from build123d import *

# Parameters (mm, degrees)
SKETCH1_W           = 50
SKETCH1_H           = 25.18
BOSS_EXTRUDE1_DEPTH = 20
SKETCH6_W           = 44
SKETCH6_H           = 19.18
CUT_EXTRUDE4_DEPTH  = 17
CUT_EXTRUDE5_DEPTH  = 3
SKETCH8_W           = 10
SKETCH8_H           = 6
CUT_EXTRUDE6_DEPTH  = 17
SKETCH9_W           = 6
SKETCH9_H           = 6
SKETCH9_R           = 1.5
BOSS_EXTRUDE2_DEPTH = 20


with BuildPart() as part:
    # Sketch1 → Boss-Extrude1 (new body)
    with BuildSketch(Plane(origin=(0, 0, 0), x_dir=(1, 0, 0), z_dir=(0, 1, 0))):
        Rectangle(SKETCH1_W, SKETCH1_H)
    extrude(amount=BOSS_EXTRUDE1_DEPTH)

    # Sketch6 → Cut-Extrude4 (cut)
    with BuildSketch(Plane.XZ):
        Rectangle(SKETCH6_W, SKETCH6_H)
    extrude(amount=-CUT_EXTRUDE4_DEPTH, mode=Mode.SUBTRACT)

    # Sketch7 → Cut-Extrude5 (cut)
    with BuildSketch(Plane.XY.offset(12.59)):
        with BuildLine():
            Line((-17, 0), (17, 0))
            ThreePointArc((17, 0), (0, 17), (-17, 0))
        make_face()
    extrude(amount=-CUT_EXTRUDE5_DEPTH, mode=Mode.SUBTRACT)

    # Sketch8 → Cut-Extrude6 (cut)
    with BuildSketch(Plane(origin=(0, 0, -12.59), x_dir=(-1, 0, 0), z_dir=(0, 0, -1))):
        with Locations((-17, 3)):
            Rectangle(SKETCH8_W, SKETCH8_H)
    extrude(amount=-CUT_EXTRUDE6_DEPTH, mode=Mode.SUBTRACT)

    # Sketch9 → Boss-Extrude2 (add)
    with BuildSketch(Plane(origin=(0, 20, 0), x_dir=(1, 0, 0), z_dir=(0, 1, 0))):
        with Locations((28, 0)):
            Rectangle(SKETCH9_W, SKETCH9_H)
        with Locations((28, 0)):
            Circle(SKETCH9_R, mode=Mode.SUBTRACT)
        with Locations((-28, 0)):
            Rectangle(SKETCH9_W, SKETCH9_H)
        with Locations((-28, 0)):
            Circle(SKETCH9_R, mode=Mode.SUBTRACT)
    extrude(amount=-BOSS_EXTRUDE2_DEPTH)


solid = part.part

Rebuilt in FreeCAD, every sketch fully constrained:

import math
import FreeCAD as App
import Part
import Sketcher
from FreeCAD import Vector


def add_polygon(sketch, points):
    """Adds a closed chain of lines whose ends are joined by coincident constraints."""
    first, n = sketch.GeometryCount, len(points)
    for a, b in zip(points, points[1:] + points[:1]):
        sketch.addGeometry(Part.LineSegment(App.Vector(*a, 0), App.Vector(*b, 0)), False)
    for i in range(n):
        sketch.addConstraint(Sketcher.Constraint("Coincident", first + i, 2, first + (i + 1) % n, 1))

doc = App.newDocument("Part")
body = doc.addObject("PartDesign::Body", "Body")

sketch1 = doc.addObject("Sketcher::SketchObject", "Sketch")
body.addObject(sketch1)
sketch1.AttachmentSupport = (doc.XZ_Plane, [""])
sketch1.MapMode = "FlatFace"
add_polygon(sketch1, [(-25, -13), (-25, 13), (25, 13), (25, -13)])
sketch1.addConstraint(Sketcher.Constraint("Vertical", 0))
sketch1.addConstraint(Sketcher.Constraint("Horizontal", 1))
sketch1.addConstraint(Sketcher.Constraint("Vertical", 2))
sketch1.addConstraint(Sketcher.Constraint("Horizontal", 3))
sketch1.addConstraint(Sketcher.Constraint("Symmetric", 0, 2, 2, 2, -1, 1))
sketch1.addConstraint(Sketcher.Constraint("DistanceX", 1, 1, 1, 2, 50.0))
sketch1.addConstraint(Sketcher.Constraint("DistanceY", 0, 1, 0, 2, 25.18))
pad1 = doc.addObject("PartDesign::Pad", "Pad")
body.addObject(pad1)
pad1.Profile = sketch1
pad1.Length = 20
pad1.Reversed = True

sketch2 = doc.addObject("Sketcher::SketchObject", "Sketch001")
body.addObject(sketch2)
sketch2.AttachmentSupport = (doc.XZ_Plane, [""])
sketch2.MapMode = "FlatFace"
add_polygon(sketch2, [(-22, 10), (-22, -10), (22, -10), (22, 10)])
sketch2.addConstraint(Sketcher.Constraint("Vertical", 0))
sketch2.addConstraint(Sketcher.Constraint("Horizontal", 1))
sketch2.addConstraint(Sketcher.Constraint("Vertical", 2))
sketch2.addConstraint(Sketcher.Constraint("Horizontal", 3))
sketch2.addConstraint(Sketcher.Constraint("Symmetric", 0, 2, 2, 2, -1, 1))
sketch2.addConstraint(Sketcher.Constraint("DistanceX", 1, 1, 1, 2, 44.0))
sketch2.addConstraint(Sketcher.Constraint("DistanceY", 0, 2, 0, 1, 19.18))
pocket1 = doc.addObject("PartDesign::Pocket", "Pocket")
body.addObject(pocket1)
pocket1.Profile = sketch2
pocket1.Length = 17

sketch3 = doc.addObject("Sketcher::SketchObject", "Sketch002")
body.addObject(sketch3)
sketch3.AttachmentSupport = (doc.XY_Plane, [""])
sketch3.MapMode = "FlatFace"
sketch3.AttachmentOffset = App.Placement(Vector(0, 0, 12.59), App.Rotation())
sketch3.addGeometry(Part.LineSegment(Vector(-17, 0, 0), Vector(17, 0, 0)), False)
sketch3.addGeometry(Part.ArcOfCircle(Part.Circle(Vector(0, 0, 0), Vector(0, 0, 1), 17), math.radians(0), math.radians(180)), False)
sketch3.addConstraint(Sketcher.Constraint("Coincident", 0, 1, 1, 2))
sketch3.addConstraint(Sketcher.Constraint("Coincident", 1, 1, 0, 2))
sketch3.addConstraint(Sketcher.Constraint("Horizontal", 0))
sketch3.addConstraint(Sketcher.Constraint("Coincident", 1, 3, -1, 1))
sketch3.addConstraint(Sketcher.Constraint("PointOnObject", 0, 1, -1))
sketch3.addConstraint(Sketcher.Constraint("Radius", 1, 17.0))
pocket2 = doc.addObject("PartDesign::Pocket", "Pocket001")
body.addObject(pocket2)
pocket2.Profile = sketch3
pocket2.Length = 3

sketch4 = doc.addObject("Sketcher::SketchObject", "Sketch003")
body.addObject(sketch4)
sketch4.AttachmentSupport = (doc.XY_Plane, [""])
sketch4.MapMode = "FlatFace"
sketch4.AttachmentOffset = App.Placement(Vector(0, 0, -12.59), App.Rotation())
add_polygon(sketch4, [(22, 6), (22, 0), (12, 0), (12, 6)])
sketch4.addConstraint(Sketcher.Constraint("Vertical", 0))
sketch4.addConstraint(Sketcher.Constraint("Horizontal", 1))
sketch4.addConstraint(Sketcher.Constraint("Vertical", 2))
sketch4.addConstraint(Sketcher.Constraint("Horizontal", 3))
sketch4.addConstraint(Sketcher.Constraint("PointOnObject", 0, 2, -1))
sketch4.addConstraint(Sketcher.Constraint("DistanceX", 1, 2, 1, 1, 10.0))
sketch4.addConstraint(Sketcher.Constraint("DistanceY", 0, 2, 0, 1, 6.0))
sketch4.addConstraint(Sketcher.Constraint("DistanceX", -1, 1, 0, 2, 22.0))
pocket3 = doc.addObject("PartDesign::Pocket", "Pocket002")
body.addObject(pocket3)
pocket3.Profile = sketch4
pocket3.Length = 17
pocket3.Reversed = True

sketch5 = doc.addObject("Sketcher::SketchObject", "Sketch004")
body.addObject(sketch5)
sketch5.AttachmentSupport = (doc.XZ_Plane, [""])
sketch5.MapMode = "FlatFace"
sketch5.AttachmentOffset = App.Placement(Vector(0, 0, -20), App.Rotation())
add_polygon(sketch5, [(25, -3), (25, 3), (31, 3), (31, -3)])
sketch5.addGeometry(Part.Circle(Vector(28, 0, 0), Vector(0, 0, 1), 1.5), False)
add_polygon(sketch5, [(-31, -3), (-31, 3), (-25, 3), (-25, -3)])
sketch5.addGeometry(Part.Circle(Vector(-28, 0, 0), Vector(0, 0, 1), 1.5), False)
sketch5.addConstraint(Sketcher.Constraint("Vertical", 0))
sketch5.addConstraint(Sketcher.Constraint("Horizontal", 1))
sketch5.addConstraint(Sketcher.Constraint("Vertical", 2))
sketch5.addConstraint(Sketcher.Constraint("Horizontal", 3))
sketch5.addConstraint(Sketcher.Constraint("Vertical", 5))
sketch5.addConstraint(Sketcher.Constraint("Horizontal", 6))
sketch5.addConstraint(Sketcher.Constraint("Vertical", 7))
sketch5.addConstraint(Sketcher.Constraint("Horizontal", 8))
sketch5.addConstraint(Sketcher.Constraint("Equal", 4, 9))
sketch5.addConstraint(Sketcher.Constraint("Symmetric", 4, 3, 9, 3, -1, 1))
sketch5.addConstraint(Sketcher.Constraint("Symmetric", 2, 2, 5, 2, -1, 1))
sketch5.addConstraint(Sketcher.Constraint("Symmetric", 0, 2, 7, 2, -1, 1))
sketch5.addConstraint(Sketcher.Constraint("PointOnObject", 4, 3, -1))
sketch5.addConstraint(Sketcher.Constraint("Horizontal", 1, 2, 5, 2))
sketch5.addConstraint(Sketcher.Constraint("Equal", 8, 0))
sketch5.addConstraint(Sketcher.Constraint("Diameter", 4, 3.0))
sketch5.addConstraint(Sketcher.Constraint("DistanceX", 1, 1, 1, 2, 6.0))
sketch5.addConstraint(Sketcher.Constraint("DistanceX", -1, 1, 4, 3, 28.0))
sketch5.addConstraint(Sketcher.Constraint("DistanceX", -1, 1, 0, 2, 25.0))
pad2 = doc.addObject("PartDesign::Pad", "Pad001")
body.addObject(pad2)
pad2.Profile = sketch5
pad2.Length = 20

doc.recompute()
